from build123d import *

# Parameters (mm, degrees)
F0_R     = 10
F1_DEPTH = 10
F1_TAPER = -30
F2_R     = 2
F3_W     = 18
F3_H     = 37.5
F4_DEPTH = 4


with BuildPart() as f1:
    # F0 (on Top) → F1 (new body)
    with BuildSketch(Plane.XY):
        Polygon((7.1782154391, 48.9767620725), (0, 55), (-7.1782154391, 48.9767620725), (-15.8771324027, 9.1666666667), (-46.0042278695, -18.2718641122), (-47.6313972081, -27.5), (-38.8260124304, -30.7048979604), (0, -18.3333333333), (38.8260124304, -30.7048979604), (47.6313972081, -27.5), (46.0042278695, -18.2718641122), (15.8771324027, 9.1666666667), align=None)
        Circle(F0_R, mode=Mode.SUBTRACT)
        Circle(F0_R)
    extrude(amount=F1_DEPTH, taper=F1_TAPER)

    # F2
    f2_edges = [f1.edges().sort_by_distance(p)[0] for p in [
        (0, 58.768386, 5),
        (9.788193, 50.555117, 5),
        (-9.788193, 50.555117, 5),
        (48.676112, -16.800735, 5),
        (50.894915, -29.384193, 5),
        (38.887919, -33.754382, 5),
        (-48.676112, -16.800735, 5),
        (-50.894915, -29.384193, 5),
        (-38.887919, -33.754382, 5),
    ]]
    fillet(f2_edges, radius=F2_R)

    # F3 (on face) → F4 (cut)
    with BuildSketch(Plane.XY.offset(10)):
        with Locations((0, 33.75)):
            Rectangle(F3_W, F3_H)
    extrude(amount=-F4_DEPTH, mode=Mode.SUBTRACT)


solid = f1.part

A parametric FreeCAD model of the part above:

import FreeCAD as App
import Part
import Sketcher
from FreeCAD import Vector
Q = App.Units.Quantity


def edges_at(feature, points):
    """Names of the edges that pass closest to the given points."""
    edges = feature.Shape.Edges
    near = lambda p: min(range(len(edges)), key=lambda i: edges[i].distToShape(Part.Vertex(*p))[0])
    return sorted({f"Edge{near(p) + 1}" for p in points})

doc = App.newDocument("Part")
body = doc.addObject("PartDesign::Body", "Body")

sketch1 = body.newObject("Sketcher::SketchObject", "Sketch")
sketch1.AttachmentSupport = (doc.getObject("XY_Plane"), [""])
sketch1.MapMode = "FlatFace"
sketch1.addGeometry([
    Part.LineSegment(Vector(7, 49, 0), Vector(0, 55, 0)),
    Part.LineSegment(Vector(0, 55, 0), Vector(-7, 49, 0)),
    Part.LineSegment(Vector(-7, 49, 0), Vector(-16, 9, 0)),
    Part.LineSegment(Vector(-16, 9, 0), Vector(-46, -18, 0)),
    Part.LineSegment(Vector(-46, -18, 0), Vector(-48, -28, 0)),
    Part.LineSegment(Vector(-48, -28, 0), Vector(-39, -31, 0)),
    Part.LineSegment(Vector(-39, -31, 0), Vector(0, -18, 0)),
    Part.LineSegment(Vector(0, -18, 0), Vector(39, -31, 0)),
    Part.LineSegment(Vector(39, -31, 0), Vector(48, -28, 0)),
    Part.LineSegment(Vector(48, -28, 0), Vector(46, -18, 0)),
    Part.LineSegment(Vector(46, -18, 0), Vector(16, 9, 0)),
    Part.LineSegment(Vector(16, 9, 0), Vector(7, 49, 0)),
], False)
sketch1.addConstraint([
    Sketcher.Constraint("Coincident", 0, 2, 1, 1),
    Sketcher.Constraint("Coincident", 1, 2, 2, 1),
    Sketcher.Constraint("Coincident", 2, 2, 3, 1),
    Sketcher.Constraint("Coincident", 3, 2, 4, 1),
    Sketcher.Constraint("Coincident", 4, 2, 5, 1),
    Sketcher.Constraint("Coincident", 5, 2, 6, 1),
    Sketcher.Constraint("Coincident", 6, 2, 7, 1),
    Sketcher.Constraint("Coincident", 7, 2, 8, 1),
    Sketcher.Constraint("Coincident", 8, 2, 9, 1),
    Sketcher.Constraint("Coincident", 9, 2, 10, 1),
    Sketcher.Constraint("Coincident", 10, 2, 11, 1),
    Sketcher.Constraint("Coincident", 11, 2, 0, 1),
    Sketcher.Constraint("Symmetric", 5, 2, 7, 2, -2),
    Sketcher.Constraint("Symmetric", 4, 2, 8, 2, -2),
    Sketcher.Constraint("Symmetric", 3, 2, 9, 2, -2),
    Sketcher.Constraint("Symmetric", 2, 2, 10, 2, -2),
    Sketcher.Constraint("Symmetric", 1, 2, 11, 2, -2),
    Sketcher.Constraint("PointOnObject", 0, 2, -2),
    Sketcher.Constraint("PointOnObject", 6, 2, -2),
    Sketcher.Constraint("Equal", 2, 3),
    Sketcher.Constraint("Equal", 1, 4),
    Sketcher.Constraint("Equal", 4, 5),
    Sketcher.Constraint("Equal", 3, 6),
    Sketcher.Constraint("Angle", 0, Q("140 deg")),
    Sketcher.Constraint("Angle", 4, Q("-100 deg")),
    Sketcher.Constraint("Angle", 5, Q("-20 deg")),
    Sketcher.Constraint("DistanceY", -1, 1, 0, 2, Q("55 mm")),
    Sketcher.Constraint("DistanceY", 4, 2, -1, 1, Q("27.5 mm")),
    Sketcher.Constraint("DistanceY", 6, 2, 2, 2, Q("27.5 mm")),
    Sketcher.Constraint("DistanceY", 3, 2, 2, 2, Q("27.438531 mm")),
    Sketcher.Constraint("DistanceX", 4, 2, 3, 2, Q("1.627169 mm")),
])
pad1 = body.newObject("PartDesign::Pad", "Pad")
pad1.Profile = sketch1
pad1.Length = 10
pad1.TaperAngle = 30
doc.recompute()

fillet = body.newObject("PartDesign::Fillet", "Fillet")
fillet.Base = (pad1, edges_at(pad1, [
    (0, 58.768, 5),
    (9.788, 50.555, 5),
    (-9.788, 50.555, 5),
    (48.676, -16.801, 5),
    (50.895, -29.384, 5),
    (38.888, -33.754, 5),
    (-48.676, -16.801, 5),
    (-50.895, -29.384, 5),
    (-38.888, -33.754, 5),
]))
fillet.Radius = 2

sketch2 = body.newObject("Sketcher::SketchObject", "Sketch001")
sketch2.AttachmentSupport = (doc.getObject("XY_Plane"), [""])
sketch2.MapMode = "FlatFace"
sketch2.AttachmentOffset = App.Placement(Vector(0, 0, 10), App.Rotation())
sketch2.addGeometry([
    Part.LineSegment(Vector(-9, 52, 0), Vector(-9, 15, 0)),
    Part.LineSegment(Vector(-9, 15, 0), Vector(9, 15, 0)),
    Part.LineSegment(Vector(9, 15, 0), Vector(9, 52, 0)),
    Part.LineSegment(Vector(9, 52, 0), Vector(-9, 52, 0)),
], False)
sketch2.addConstraint([
    Sketcher.Constraint("Coincident", 0, 2, 1, 1),
    Sketcher.Constraint("Coincident", 1, 2, 2, 1),
    Sketcher.Constraint("Coincident", 2, 2, 3, 1),
    Sketcher.Constraint("Coincident", 3, 2, 0, 1),
    Sketcher.Constraint("Vertical", 0),
    Sketcher.Constraint("Horizontal", 1),
    Sketcher.Constraint("Vertical", 2),
    Sketcher.Constraint("Horizontal", 3),
    Sketcher.Constraint("DistanceX", 1, 1, 1, 2, Q("18 mm")),
    Sketcher.Constraint("DistanceY", 0, 2, 0, 1, Q("37.5 mm")),
    Sketcher.Constraint("DistanceX", 0, 2, -1, 1, Q("9 mm")),
    Sketcher.Constraint("DistanceY", -1, 1, 0, 2, Q("15 mm")),
])
pocket1 = body.newObject("PartDesign::Pocket", "Pocket")
pocket1.Profile = sketch2
pocket1.Length = 4

doc.recompute()
